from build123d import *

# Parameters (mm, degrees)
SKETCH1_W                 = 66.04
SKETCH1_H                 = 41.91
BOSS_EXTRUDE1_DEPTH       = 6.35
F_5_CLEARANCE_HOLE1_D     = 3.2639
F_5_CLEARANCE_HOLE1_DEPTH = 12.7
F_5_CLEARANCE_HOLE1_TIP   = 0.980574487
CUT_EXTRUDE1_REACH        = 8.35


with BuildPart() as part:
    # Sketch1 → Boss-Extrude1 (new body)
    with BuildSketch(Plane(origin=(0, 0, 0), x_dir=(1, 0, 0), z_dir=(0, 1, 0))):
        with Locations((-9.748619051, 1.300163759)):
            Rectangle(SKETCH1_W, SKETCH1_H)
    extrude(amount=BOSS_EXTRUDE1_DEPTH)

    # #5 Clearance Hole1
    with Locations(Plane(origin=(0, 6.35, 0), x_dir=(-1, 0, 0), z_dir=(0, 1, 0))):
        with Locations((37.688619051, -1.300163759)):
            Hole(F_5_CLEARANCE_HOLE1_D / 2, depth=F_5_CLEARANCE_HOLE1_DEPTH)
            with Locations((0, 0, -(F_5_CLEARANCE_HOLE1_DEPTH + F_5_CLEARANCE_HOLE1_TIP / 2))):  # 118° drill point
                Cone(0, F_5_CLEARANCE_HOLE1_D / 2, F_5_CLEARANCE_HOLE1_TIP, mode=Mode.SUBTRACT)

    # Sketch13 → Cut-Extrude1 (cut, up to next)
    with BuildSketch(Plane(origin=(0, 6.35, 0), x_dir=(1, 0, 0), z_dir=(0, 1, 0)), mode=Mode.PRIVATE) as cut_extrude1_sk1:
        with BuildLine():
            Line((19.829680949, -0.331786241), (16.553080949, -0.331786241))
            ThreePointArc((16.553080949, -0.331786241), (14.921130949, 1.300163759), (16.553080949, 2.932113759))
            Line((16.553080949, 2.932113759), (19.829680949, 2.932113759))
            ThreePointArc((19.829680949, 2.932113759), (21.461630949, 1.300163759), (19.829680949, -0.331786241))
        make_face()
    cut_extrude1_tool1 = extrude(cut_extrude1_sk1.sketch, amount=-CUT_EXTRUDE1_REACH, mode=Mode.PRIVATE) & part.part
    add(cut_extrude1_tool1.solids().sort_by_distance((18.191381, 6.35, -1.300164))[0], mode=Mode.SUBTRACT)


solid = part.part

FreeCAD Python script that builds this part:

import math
import FreeCAD as App
import Part
import Sketcher

V = App.Vector
Q = App.Units.Quantity

doc = App.newDocument("Part")
body = doc.addObject("PartDesign::Body", "Body")

# Sketch on XZ plane
sketch1 = doc.addObject("Sketcher::SketchObject", "Sketch")
body.addObject(sketch1)
sketch1.AttachmentSupport = (doc.XZ_Plane, [""])
sketch1.MapMode = "FlatFace"
sketch1.addGeometry(Part.LineSegment(V(-43, -22, 0), V(-43, 20, 0)), False)
sketch1.addGeometry(Part.LineSegment(V(-43, 20, 0), V(23, 20, 0)), False)
sketch1.addGeometry(Part.LineSegment(V(23, 20, 0), V(23, -22, 0)), False)
sketch1.addGeometry(Part.LineSegment(V(23, -22, 0), V(-43, -22, 0)), False)
sketch1.addConstraint(Sketcher.Constraint("Coincident", 0, 2, 1, 1))
sketch1.addConstraint(Sketcher.Constraint("Coincident", 1, 2, 2, 1))
sketch1.addConstraint(Sketcher.Constraint("Coincident", 2, 2, 3, 1))
sketch1.addConstraint(Sketcher.Constraint("Coincident", 3, 2, 0, 1))
sketch1.addConstraint(Sketcher.Constraint("Vertical", 0))
sketch1.addConstraint(Sketcher.Constraint("Horizontal", 1))
sketch1.addConstraint(Sketcher.Constraint("Vertical", 2))
sketch1.addConstraint(Sketcher.Constraint("Horizontal", 3))
sketch1.addConstraint(Sketcher.Constraint("DistanceX", 1, 1, 1, 2, Q("2.6 in")))
sketch1.addConstraint(Sketcher.Constraint("DistanceY", 0, 1, 0, 2, Q("1.65 in")))
sketch1.addConstraint(Sketcher.Constraint("DistanceX", 0, 2, -1, 1, Q("42.768619 mm")))
sketch1.addConstraint(Sketcher.Constraint("DistanceY", -1, 1, 0, 2, Q("19.654836 mm")))
pad1 = doc.addObject("PartDesign::Pad", "Pad")
body.addObject(pad1)
pad1.Profile = sketch1
pad1.Length = Q("0.25 in")
pad1.Reversed = True

# Sketch on XZ plane
sketch2 = doc.addObject("Sketcher::SketchObject", "Sketch001")
body.addObject(sketch2)
sketch2.AttachmentSupport = (doc.XZ_Plane, [""])
sketch2.MapMode = "FlatFace"
sketch2.AttachmentOffset = App.Placement(V(0, 0, -0.25 * 25.4), App.Rotation())
sketch2.addGeometry(Part.Circle(V(-37.7, -1.3, 0), V(0, 0, 1), 1.6), False)
sketch2.addConstraint(Sketcher.Constraint("Diameter", 0, Q("0.1285 in")))
sketch2.addConstraint(Sketcher.Constraint("DistanceX", 0, 3, -1, 1, Q("37.688619 mm")))
sketch2.addConstraint(Sketcher.Constraint("DistanceY", 0, 3, -1, 1, Q("1.300164 mm")))
doc.recompute()
hole = doc.addObject("PartDesign::Hole", "Hole")
body.addObject(hole)
hole.Profile = sketch2
hole.ThreadType = "None"
hole.Diameter = Q("0.1285 in")
hole.DepthType = "Dimension"
hole.Depth = Q("0.5 in")
hole.DrillPoint = "Angled"
hole.DrillPointAngle = 118
hole.Reversed = True

# Sketch on XZ plane
sketch3 = doc.addObject("Sketcher::SketchObject", "Sketch002")
body.addObject(sketch3)
sketch3.AttachmentSupport = (doc.XZ_Plane, [""])
sketch3.MapMode = "FlatFace"
sketch3.AttachmentOffset = App.Placement(V(0, 0, -0.25 * 25.4), App.Rotation())
sketch3.addGeometry(Part.LineSegment(V(16.6, 0.3, 0), V(19.8, 0.3, 0)), False)
sketch3.addGeometry(Part.ArcOfCircle(Part.Circle(V(19.8, -1.3, 0), V(0, 0, 1), 1.6), math.radians(-90), math.radians(90)), False)
sketch3.addGeometry(Part.LineSegment(V(19.8, -2.9, 0), V(16.6, -2.9, 0)), False)
sketch3.addGeometry(Part.ArcOfCircle(Part.Circle(V(16.6, -1.3, 0), V(0, 0, 1), 1.6), math.radians(90), math.radians(270)), False)
sketch3.addConstraint(Sketcher.Constraint("Tangent", 0, 2, 1, 2))
sketch3.addConstraint(Sketcher.Constraint("Tangent", 1, 1, 2, 1))
sketch3.addConstraint(Sketcher.Constraint("Tangent", 2, 2, 3, 2))
sketch3.addConstraint(Sketcher.Constraint("Tangent", 3, 1, 0, 1))
sketch3.addConstraint(Sketcher.Constraint("Horizontal", 0))
sketch3.addConstraint(Sketcher.Constraint("Horizontal", 2))
sketch3.addConstraint(Sketcher.Constraint("DistanceX", 0, 1, 0, 2, Q("0.129 in")))
sketch3.addConstraint(Sketcher.Constraint("Radius", 1, Q("1.63195 mm")))
sketch3.addConstraint(Sketcher.Constraint("DistanceX", -1, 1, 1, 3, Q("19.829681 mm")))
sketch3.addConstraint(Sketcher.Constraint("DistanceY", 1, 3, -1, 1, Q("1.300164 mm")))
pocket1 = doc.addObject("PartDesign::Pocket", "Pocket")
body.addObject(pocket1)
pocket1.Profile = sketch3
pocket1.Type = "UpToFirst"
pocket1.Reversed = True

doc.recompute()
